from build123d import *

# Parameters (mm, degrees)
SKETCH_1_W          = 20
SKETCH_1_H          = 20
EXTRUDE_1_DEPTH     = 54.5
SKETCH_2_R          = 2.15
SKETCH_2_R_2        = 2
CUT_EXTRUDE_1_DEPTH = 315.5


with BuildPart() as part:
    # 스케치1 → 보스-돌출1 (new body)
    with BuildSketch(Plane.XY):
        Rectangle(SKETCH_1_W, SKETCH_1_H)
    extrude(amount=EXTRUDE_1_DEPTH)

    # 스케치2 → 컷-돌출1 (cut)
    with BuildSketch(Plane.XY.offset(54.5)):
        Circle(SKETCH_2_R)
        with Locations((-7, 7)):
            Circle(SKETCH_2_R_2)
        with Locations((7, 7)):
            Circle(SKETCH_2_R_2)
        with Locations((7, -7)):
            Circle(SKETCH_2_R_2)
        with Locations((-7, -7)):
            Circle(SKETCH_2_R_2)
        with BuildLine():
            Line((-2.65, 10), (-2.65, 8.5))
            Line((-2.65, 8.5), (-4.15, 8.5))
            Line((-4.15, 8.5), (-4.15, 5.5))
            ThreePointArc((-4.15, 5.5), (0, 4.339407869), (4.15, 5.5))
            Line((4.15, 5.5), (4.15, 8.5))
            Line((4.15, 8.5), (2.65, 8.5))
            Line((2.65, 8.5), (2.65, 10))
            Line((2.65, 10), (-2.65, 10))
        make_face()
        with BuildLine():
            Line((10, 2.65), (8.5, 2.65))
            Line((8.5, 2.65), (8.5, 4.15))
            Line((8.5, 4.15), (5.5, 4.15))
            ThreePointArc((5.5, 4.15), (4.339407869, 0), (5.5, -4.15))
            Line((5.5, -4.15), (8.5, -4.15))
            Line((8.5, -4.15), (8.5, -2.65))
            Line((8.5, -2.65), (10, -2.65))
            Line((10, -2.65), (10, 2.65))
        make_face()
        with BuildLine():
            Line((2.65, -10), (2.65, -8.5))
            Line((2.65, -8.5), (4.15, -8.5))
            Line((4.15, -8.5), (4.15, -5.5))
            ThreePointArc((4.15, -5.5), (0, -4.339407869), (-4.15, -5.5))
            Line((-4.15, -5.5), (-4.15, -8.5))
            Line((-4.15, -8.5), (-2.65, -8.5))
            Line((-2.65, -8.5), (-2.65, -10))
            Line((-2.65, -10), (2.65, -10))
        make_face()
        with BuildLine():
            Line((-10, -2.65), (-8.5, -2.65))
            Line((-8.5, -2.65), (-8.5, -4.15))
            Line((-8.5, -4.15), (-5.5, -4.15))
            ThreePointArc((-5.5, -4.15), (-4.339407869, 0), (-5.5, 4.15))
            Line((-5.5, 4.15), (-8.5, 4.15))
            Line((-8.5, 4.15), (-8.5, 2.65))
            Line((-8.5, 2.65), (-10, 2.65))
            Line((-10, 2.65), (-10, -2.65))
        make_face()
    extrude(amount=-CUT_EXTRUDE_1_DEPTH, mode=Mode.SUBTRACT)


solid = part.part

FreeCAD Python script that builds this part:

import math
import FreeCAD as App
import Part
import Sketcher

doc = App.newDocument("Part")
body = doc.addObject("PartDesign::Body", "Body")

# Sketch on XY plane
sketch1 = body.newObject("Sketcher::SketchObject", "Sketch")
sketch1.AttachmentSupport = (doc.getObject("XY_Plane"), [""])
sketch1.MapMode = "FlatFace"
sketch1.addGeometry([
    Part.LineSegment(App.Vector(-10, 10, 0), App.Vector(-10, -10, 0)),
    Part.LineSegment(App.Vector(-10, -10, 0), App.Vector(10, -10, 0)),
    Part.LineSegment(App.Vector(10, -10, 0), App.Vector(10, 10, 0)),
    Part.LineSegment(App.Vector(10, 10, 0), App.Vector(-10, 10, 0)),
], False)
sketch1.addConstraint([
    Sketcher.Constraint("Coincident", 0, 2, 1, 1),
    Sketcher.Constraint("Coincident", 1, 2, 2, 1),
    Sketcher.Constraint("Coincident", 2, 2, 3, 1),
    Sketcher.Constraint("Coincident", 3, 2, 0, 1),
    Sketcher.Constraint("Vertical", 0),
    Sketcher.Constraint("Horizontal", 1),
    Sketcher.Constraint("Vertical", 2),
    Sketcher.Constraint("Horizontal", 3),
    Sketcher.Constraint("Symmetric", 0, 2, 2, 2, -1, 1),
    Sketcher.Constraint("Equal", 3, 0),
    Sketcher.Constraint("DistanceX", 1, 1, 1, 2, 20.0),
])
pad1 = body.newObject("PartDesign::Pad", "Pad")
pad1.Profile = sketch1
pad1.Length = 54.5

# Sketch on XY plane
sketch2 = body.newObject("Sketcher::SketchObject", "Sketch001")
sketch2.AttachmentSupport = (doc.getObject("XY_Plane"), [""])
sketch2.MapMode = "FlatFace"
sketch2.AttachmentOffset = App.Placement(App.Vector(0, 0, 54.5), App.Rotation())
sketch2.addGeometry([
    Part.Circle(App.Vector(0, 0, 0), App.Vector(0, 0, 1), 2.1),  # 0
    Part.Circle(App.Vector(-7, 7, 0), App.Vector(0, 0, 1), 2),  # 1
    Part.Circle(App.Vector(7, 7, 0), App.Vector(0, 0, 1), 2),  # 2
    Part.Circle(App.Vector(7, -7, 0), App.Vector(0, 0, 1), 2),  # 3
    Part.Circle(App.Vector(-7, -7, 0), App.Vector(0, 0, 1), 2),  # 4
    Part.LineSegment(App.Vector(-2.6, 10, 0), App.Vector(-2.6, 8.5, 0)),  # 5
    Part.LineSegment(App.Vector(-2.6, 8.5, 0), App.Vector(-4.2, 8.5, 0)),  # 6
    Part.LineSegment(App.Vector(-4.2, 8.5, 0), App.Vector(-4.2, 5.5, 0)),  # 7
    Part.ArcOfCircle(Part.Circle(App.Vector(0, 12.3, 0), App.Vector(0, 0, 1), 8), math.radians(-121), math.radians(-59)),  # 8
    Part.LineSegment(App.Vector(4.2, 5.5, 0), App.Vector(4.2, 8.5, 0)),  # 9
    Part.LineSegment(App.Vector(4.2, 8.5, 0), App.Vector(2.6, 8.5, 0)),  # 10
    Part.LineSegment(App.Vector(2.6, 8.5, 0), App.Vector(2.6, 10, 0)),  # 11
    Part.LineSegment(App.Vector(2.6, 10, 0), App.Vector(-2.6, 10, 0)),  # 12
    Part.LineSegment(App.Vector(10, 2.6, 0), App.Vector(8.5, 2.6, 0)),  # 13
    Part.LineSegment(App.Vector(8.5, 2.6, 0), App.Vector(8.5, 4.2, 0)),  # 14
    Part.LineSegment(App.Vector(8.5, 4.2, 0), App.Vector(5.5, 4.2, 0)),  # 15
    Part.ArcOfCircle(Part.Circle(App.Vector(12.3, 0, 0), App.Vector(0, 0, 1), 8), math.radians(149), math.radians(211)),  # 16
    Part.LineSegment(App.Vector(5.5, -4.2, 0), App.Vector(8.5, -4.2, 0)),  # 17
    Part.LineSegment(App.Vector(8.5, -4.2, 0), App.Vector(8.5, -2.6, 0)),  # 18
    Part.LineSegment(App.Vector(8.5, -2.6, 0), App.Vector(10, -2.6, 0)),  # 19
    Part.LineSegment(App.Vector(10, -2.6, 0), App.Vector(10, 2.6, 0)),  # 20
    Part.LineSegment(App.Vector(2.6, -10, 0), App.Vector(2.6, -8.5, 0)),  # 21
    Part.LineSegment(App.Vector(2.6, -8.5, 0), App.Vector(4.2, -8.5, 0)),  # 22
    Part.LineSegment(App.Vector(4.2, -8.5, 0), App.Vector(4.2, -5.5, 0)),  # 23
    Part.ArcOfCircle(Part.Circle(App.Vector(0, -12.3, 0), App.Vector(0, 0, 1), 8), math.radians(59), math.radians(121)),  # 24
    Part.LineSegment(App.Vector(-4.2, -5.5, 0), App.Vector(-4.2, -8.5, 0)),  # 25
    Part.LineSegment(App.Vector(-4.2, -8.5, 0), App.Vector(-2.6, -8.5, 0)),  # 26
    Part.LineSegment(App.Vector(-2.6, -8.5, 0), App.Vector(-2.6, -10, 0)),  # 27
    Part.LineSegment(App.Vector(-2.6, -10, 0), App.Vector(2.6, -10, 0)),  # 28
    Part.LineSegment(App.Vector(-10, -2.6, 0), App.Vector(-8.5, -2.6, 0)),  # 29
    Part.LineSegment(App.Vector(-8.5, -2.6, 0), App.Vector(-8.5, -4.2, 0)),  # 30
    Part.LineSegment(App.Vector(-8.5, -4.2, 0), App.Vector(-5.5, -4.2, 0)),  # 31
    Part.ArcOfCircle(Part.Circle(App.Vector(-12.3, 0, 0), App.Vector(0, 0, 1), 8), math.radians(-31), math.radians(31)),  # 32
    Part.LineSegment(App.Vector(-5.5, 4.2, 0), App.Vector(-8.5, 4.2, 0)),  # 33
    Part.LineSegment(App.Vector(-8.5, 4.2, 0), App.Vector(-8.5, 2.6, 0)),  # 34
    Part.LineSegment(App.Vector(-8.5, 2.6, 0), App.Vector(-10, 2.6, 0)),  # 35
    Part.LineSegment(App.Vector(-10, 2.6, 0), App.Vector(-10, -2.6, 0)),  # 36
], False)
sketch2.addConstraint([
    Sketcher.Constraint("Coincident", 5, 2, 6, 1),
    Sketcher.Constraint("Coincident", 6, 2, 7, 1),
    Sketcher.Constraint("Coincident", 7, 2, 8, 1),
    Sketcher.Constraint("Coincident", 8, 2, 9, 1),
    Sketcher.Constraint("Coincident", 9, 2, 10, 1),
    Sketcher.Constraint("Coincident", 10, 2, 11, 1),
    Sketcher.Constraint("Coincident", 11, 2, 12, 1),
    Sketcher.Constraint("Coincident", 12, 2, 5, 1),
    Sketcher.Constraint("Coincident", 13, 2, 14, 1),
    Sketcher.Constraint("Coincident", 14, 2, 15, 1),
    Sketcher.Constraint("Coincident", 15, 2, 16, 1),
    Sketcher.Constraint("Coincident", 16, 2, 17, 1),
    Sketcher.Constraint("Coincident", 17, 2, 18, 1),
    Sketcher.Constraint("Coincident", 18, 2, 19, 1),
    Sketcher.Constraint("Coincident", 19, 2, 20, 1),
    Sketcher.Constraint("Coincident", 20, 2, 13, 1),
    Sketcher.Constraint("Coincident", 21, 2, 22, 1),
    Sketcher.Constraint("Coincident", 22, 2, 23, 1),
    Sketcher.Constraint("Coincident", 23, 2, 24, 1),
    Sketcher.Constraint("Coincident", 24, 2, 25, 1),
    Sketcher.Constraint("Coincident", 25, 2, 26, 1),
    Sketcher.Constraint("Coincident", 26, 2, 27, 1),
    Sketcher.Constraint("Coincident", 27, 2, 28, 1),
    Sketcher.Constraint("Coincident", 28, 2, 21, 1),
    Sketcher.Constraint("Coincident", 29, 2, 30, 1),
    Sketcher.Constraint("Coincident", 30, 2, 31, 1),
    Sketcher.Constraint("Coincident", 31, 2, 32, 1),
    Sketcher.Constraint("Coincident", 32, 2, 33, 1),
    Sketcher.Constraint("Coincident", 33, 2, 34, 1),
    Sketcher.Constraint("Coincident", 34, 2, 35, 1),
    Sketcher.Constraint("Coincident", 35, 2, 36, 1),
    Sketcher.Constraint("Coincident", 36, 2, 29, 1),
    Sketcher.Constraint("Vertical", 5),
    Sketcher.Constraint("Horizontal", 6),
    Sketcher.Constraint("Vertical", 7),
    Sketcher.Constraint("Vertical", 9),
    Sketcher.Constraint("Horizontal", 10),
    Sketcher.Constraint("Vertical", 11),
    Sketcher.Constraint("Horizontal", 12),
    Sketcher.Constraint("Horizontal", 13),
    Sketcher.Constraint("Vertical", 14),
    Sketcher.Constraint("Horizontal", 15),
    Sketcher.Constraint("Horizontal", 17),
    Sketcher.Constraint("Vertical", 18),
    Sketcher.Constraint("Horizontal", 19),
    Sketcher.Constraint("Vertical", 20),
    Sketcher.Constraint("Vertical", 21),
    Sketcher.Constraint("Horizontal", 22),
    Sketcher.Constraint("Vertical", 23),
    Sketcher.Constraint("Vertical", 25),
    Sketcher.Constraint("Horizontal", 26),
    Sketcher.Constraint("Vertical", 27),
    Sketcher.Constraint("Horizontal", 28),
    Sketcher.Constraint("Horizontal", 29),
    Sketcher.Constraint("Vertical", 30),
    Sketcher.Constraint("Horizontal", 31),
    Sketcher.Constraint("Horizontal", 33),
    Sketcher.Constraint("Vertical", 34),
    Sketcher.Constraint("Horizontal", 35),
    Sketcher.Constraint("Vertical", 36),
    Sketcher.Constraint("Coincident", 0, 3, -1, 1),
    Sketcher.Constraint("Equal", 1, 2),
    Sketcher.Constraint("Equal", 2, 3),
    Sketcher.Constraint("Equal", 3, 4),
    Sketcher.Constraint("Equal", 8, 16),
    Sketcher.Constraint("Equal", 16, 24),
    Sketcher.Constraint("Equal", 24, 32),
    Sketcher.Constraint("Symmetric", 1, 3, 3, 3, -1, 1),
    Sketcher.Constraint("Symmetric", 2, 3, 4, 3, -1, 1),
    Sketcher.Constraint("Symmetric", 8, 3, 24, 3, -1, 1),
    Sketcher.Constraint("Symmetric", 16, 3, 32, 3, -1, 1),
    Sketcher.Constraint("Symmetric", 5, 2, 21, 2, -1, 1),
    Sketcher.Constraint("Symmetric", 9, 2, 25, 2, -1, 1),
    Sketcher.Constraint("Symmetric", 11, 2, 27, 2, -1, 1),
    Sketcher.Constraint("Symmetric", 13, 2, 29, 2, -1, 1),
    Sketcher.Constraint("Symmetric", 17, 2, 33, 2, -1, 1),
    Sketcher.Constraint("Symmetric", 19, 2, 35, 2, -1, 1),
    Sketcher.Constraint("Symmetric", 1, 3, 2, 3, -2),
    Sketcher.Constraint("Symmetric", 7, 2, 8, 2, -2),
    Sketcher.Constraint("Symmetric", 5, 2, 10, 2, -2),
    Sketcher.Constraint("Symmetric", 18, 2, 29, 2, -2),
    Sketcher.Constraint("Symmetric", 16, 2, 31, 2, -2),
    Sketcher.Constraint("Horizontal", 23, 2, 24, 2),
    Sketcher.Constraint("Horizontal", 15, 2, 32, 2),
    Sketcher.Constraint("Equal", 10, 13),
    Sketcher.Constraint("Equal", 35, 5),
    Sketcher.Constraint("Equal", 33, 7),
    Sketcher.Constraint("Equal", 11, 14),
    Sketcher.Constraint("Equal", 28, 20),
    Sketcher.Constraint("Diameter", 1, 4.0),
    Sketcher.Constraint("Radius", 8, 8.0),
    Sketcher.Constraint("Diameter", 0, 4.3),
    Sketcher.Constraint("DistanceX", 15, 2, 15, 1, 3.0),
    Sketcher.Constraint("DistanceX", 6, 2, 6, 1, 1.5),
    Sketcher.Constraint("DistanceX", 12, 2, 12, 1, 5.3),
    Sketcher.Constraint("DistanceX", 1, 3, -1, 1, 7.0),
    Sketcher.Constraint("DistanceY", -1, 1, 1, 3, 7.0),
    Sketcher.Constraint("DistanceY", -1, 1, 11, 2, 10.0),
    Sketcher.Constraint("DistanceX", -1, 1, 19, 2, 10.0),
])
pocket1 = body.newObject("PartDesign::Pocket", "Pocket")
pocket1.Profile = sketch2
pocket1.Length = 315.5

doc.recompute()
